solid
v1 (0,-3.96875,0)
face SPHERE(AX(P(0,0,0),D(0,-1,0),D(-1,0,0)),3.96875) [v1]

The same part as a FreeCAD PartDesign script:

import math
import FreeCAD as App
import Part
import Sketcher
Q = App.Units.Quantity

doc = App.newDocument("Part")
params = doc.addObject("Spreadsheet::Sheet", "Params")
for row, (alias, value) in enumerate([
    ("sketch1_radius", "0.15625 in"),
    ("revolution_angle", "360 deg"),
], start=1):
    params.set(f"A{row}", alias)
    params.set(f"B{row}", "=" + value)
    params.setAlias(f"B{row}", alias)

body = doc.addObject("PartDesign::Body", "Body")

# Sketch on XY plane
sketch1 = doc.addObject("Sketcher::SketchObject", "Sketch")
body.addObject(sketch1)
sketch1.AttachmentSupport = (doc.XY_Plane, [""])
sketch1.MapMode = "FlatFace"
sketch1.addGeometry([
    Part.LineSegment(App.Vector(0, -4, 0), App.Vector(0, 4, 0)),
    Part.ArcOfCircle(Part.Circle(App.Vector(0, 0, 0), App.Vector(0, 0, 1), 4), math.radians(90), math.radians(270)),
], False)
sketch1.addConstraint([
    Sketcher.Constraint("Coincident", 0, 1, 1, 2),
    Sketcher.Constraint("Coincident", 1, 1, 0, 2),
    Sketcher.Constraint("Vertical", 0),
    Sketcher.Constraint("Coincident", 1, 3, -1, 1),
    Sketcher.Constraint("PointOnObject", 0, 1, -2),
    Sketcher.Constraint("Radius", 1, Q("0.15625 in")),
])
sketch1.setExpression("Constraints[5]", "Params.sketch1_radius")
revolution = doc.addObject("PartDesign::Revolution", "Revolution")
body.addObject(revolution)
revolution.Profile = sketch1
revolution.ReferenceAxis = (sketch1, ["V_Axis"])
revolution.setExpression("Angle", "Params.revolution_angle")

doc.recompute()
